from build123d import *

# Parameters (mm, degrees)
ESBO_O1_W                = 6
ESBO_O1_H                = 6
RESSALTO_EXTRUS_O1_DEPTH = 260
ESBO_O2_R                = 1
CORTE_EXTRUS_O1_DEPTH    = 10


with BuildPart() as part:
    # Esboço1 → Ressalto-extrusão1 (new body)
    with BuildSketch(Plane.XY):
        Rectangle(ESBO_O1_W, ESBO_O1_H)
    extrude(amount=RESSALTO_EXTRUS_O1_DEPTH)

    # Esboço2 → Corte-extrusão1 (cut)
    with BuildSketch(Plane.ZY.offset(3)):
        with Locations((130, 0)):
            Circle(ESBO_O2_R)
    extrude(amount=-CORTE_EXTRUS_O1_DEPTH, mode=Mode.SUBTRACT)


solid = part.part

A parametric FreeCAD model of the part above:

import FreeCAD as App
import Part
import Sketcher

doc = App.newDocument("Part")
body = doc.addObject("PartDesign::Body", "Body")

# Sketch on XY plane
sketch1 = doc.addObject("Sketcher::SketchObject", "Sketch")
body.addObject(sketch1)
sketch1.AttachmentSupport = (doc.XY_Plane, [""])
sketch1.MapMode = "FlatFace"
sketch1.addGeometry([
    Part.LineSegment(App.Vector(-3, 3, 0), App.Vector(-3, -3, 0)),
    Part.LineSegment(App.Vector(-3, -3, 0), App.Vector(3, -3, 0)),
    Part.LineSegment(App.Vector(3, -3, 0), App.Vector(3, 3, 0)),
    Part.LineSegment(App.Vector(3, 3, 0), App.Vector(-3, 3, 0)),
], False)
sketch1.addConstraint([
    Sketcher.Constraint("Coincident", 0, 2, 1, 1),
    Sketcher.Constraint("Coincident", 1, 2, 2, 1),
    Sketcher.Constraint("Coincident", 2, 2, 3, 1),
    Sketcher.Constraint("Coincident", 3, 2, 0, 1),
    Sketcher.Constraint("Vertical", 0),
    Sketcher.Constraint("Horizontal", 1),
    Sketcher.Constraint("Vertical", 2),
    Sketcher.Constraint("Horizontal", 3),
    Sketcher.Constraint("Symmetric", 0, 2, 2, 2, -1, 1),
    Sketcher.Constraint("Equal", 3, 0),
    Sketcher.Constraint("DistanceX", 1, 1, 1, 2, 6.0),
])
pad1 = doc.addObject("PartDesign::Pad", "Pad")
body.addObject(pad1)
pad1.Profile = sketch1
pad1.Length = 260

# Sketch on YZ plane
sketch2 = doc.addObject("Sketcher::SketchObject", "Sketch001")
body.addObject(sketch2)
sketch2.AttachmentSupport = (doc.YZ_Plane, [""])
sketch2.MapMode = "FlatFace"
sketch2.AttachmentOffset = App.Placement(App.Vector(0, 0, -3), App.Rotation())
sketch2.addGeometry(Part.Circle(App.Vector(0, 130, 0), App.Vector(0, 0, 1), 1), False)
sketch2.addConstraint([
    Sketcher.Constraint("PointOnObject", 0, 3, -2),
    Sketcher.Constraint("Diameter", 0, 2.0),
    Sketcher.Constraint("DistanceY", -1, 1, 0, 3, 130.0),
])
pocket1 = doc.addObject("PartDesign::Pocket", "Pocket")
body.addObject(pocket1)
pocket1.Profile = sketch2
pocket1.Length = 10
pocket1.Reversed = True

doc.recompute()
